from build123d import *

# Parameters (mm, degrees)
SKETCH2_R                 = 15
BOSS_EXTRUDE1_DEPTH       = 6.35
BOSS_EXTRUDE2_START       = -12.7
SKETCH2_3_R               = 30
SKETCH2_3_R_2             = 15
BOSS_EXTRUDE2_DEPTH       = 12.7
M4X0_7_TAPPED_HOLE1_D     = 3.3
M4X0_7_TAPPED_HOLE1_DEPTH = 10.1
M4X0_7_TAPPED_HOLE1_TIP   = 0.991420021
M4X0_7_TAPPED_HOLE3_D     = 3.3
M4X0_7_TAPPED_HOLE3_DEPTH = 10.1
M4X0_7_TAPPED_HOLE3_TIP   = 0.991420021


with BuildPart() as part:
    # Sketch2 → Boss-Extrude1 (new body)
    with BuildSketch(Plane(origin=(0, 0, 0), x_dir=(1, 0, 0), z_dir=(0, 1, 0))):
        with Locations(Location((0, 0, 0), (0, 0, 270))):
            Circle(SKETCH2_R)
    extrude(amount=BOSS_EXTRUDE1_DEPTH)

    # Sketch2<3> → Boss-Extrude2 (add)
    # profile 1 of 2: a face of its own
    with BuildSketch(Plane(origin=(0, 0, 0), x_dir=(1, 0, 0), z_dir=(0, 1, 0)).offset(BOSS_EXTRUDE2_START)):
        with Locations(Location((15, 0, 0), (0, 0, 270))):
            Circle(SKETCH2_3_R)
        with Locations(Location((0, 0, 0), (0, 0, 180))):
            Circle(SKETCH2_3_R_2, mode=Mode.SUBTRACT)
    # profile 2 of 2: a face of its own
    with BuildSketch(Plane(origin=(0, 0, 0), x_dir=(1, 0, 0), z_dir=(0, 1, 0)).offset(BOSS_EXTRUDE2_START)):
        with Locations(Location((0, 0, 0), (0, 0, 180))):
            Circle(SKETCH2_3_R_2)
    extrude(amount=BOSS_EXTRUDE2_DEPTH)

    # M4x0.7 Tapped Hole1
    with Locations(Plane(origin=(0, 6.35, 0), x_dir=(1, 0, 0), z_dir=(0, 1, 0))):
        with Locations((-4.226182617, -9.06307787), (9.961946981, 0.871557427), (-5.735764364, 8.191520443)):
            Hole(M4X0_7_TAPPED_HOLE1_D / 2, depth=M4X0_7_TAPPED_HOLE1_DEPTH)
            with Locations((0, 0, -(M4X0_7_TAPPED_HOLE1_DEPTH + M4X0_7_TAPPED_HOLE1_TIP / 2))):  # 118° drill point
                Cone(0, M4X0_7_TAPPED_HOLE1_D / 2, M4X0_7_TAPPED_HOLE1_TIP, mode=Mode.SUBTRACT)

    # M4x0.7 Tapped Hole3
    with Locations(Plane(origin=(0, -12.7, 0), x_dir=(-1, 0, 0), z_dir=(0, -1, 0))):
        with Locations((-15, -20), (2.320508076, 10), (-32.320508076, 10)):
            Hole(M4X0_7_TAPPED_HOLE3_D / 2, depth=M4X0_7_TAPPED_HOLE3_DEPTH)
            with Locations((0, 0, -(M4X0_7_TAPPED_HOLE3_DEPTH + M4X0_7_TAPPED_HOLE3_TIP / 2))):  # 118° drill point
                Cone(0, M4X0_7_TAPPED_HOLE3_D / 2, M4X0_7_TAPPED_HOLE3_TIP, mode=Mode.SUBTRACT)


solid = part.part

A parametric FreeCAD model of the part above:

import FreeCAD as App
import Part
import Sketcher
from FreeCAD import Vector

doc = App.newDocument("Part")
body = doc.addObject("PartDesign::Body", "Body")

# Sketch on XZ plane
sketch1 = body.newObject("Sketcher::SketchObject", "Sketch")
sketch1.AttachmentSupport = (doc.getObject("XZ_Plane"), [""])
sketch1.MapMode = "FlatFace"
sketch1.addGeometry(Part.Circle(Vector(0, 0, 0), Vector(0, 0, 1), 15), False)
sketch1.addConstraint([
    Sketcher.Constraint("Coincident", 0, 3, -1, 1),
    Sketcher.Constraint("Diameter", 0, 30.0),
])
pad1 = body.newObject("PartDesign::Pad", "Pad")
pad1.Profile = sketch1
pad1.Length = 6.35
pad1.Reversed = True

# Sketch on XZ plane
sketch2 = body.newObject("Sketcher::SketchObject", "Sketch001")
sketch2.AttachmentSupport = (doc.getObject("XZ_Plane"), [""])
sketch2.MapMode = "FlatFace"
sketch2.AttachmentOffset = App.Placement(Vector(0, 0, 12.7), App.Rotation())
sketch2.addGeometry(Part.Circle(Vector(15, 0, 0), Vector(0, 0, 1), 30), False)
sketch2.addConstraint([
    Sketcher.Constraint("PointOnObject", 0, 3, -1),
    Sketcher.Constraint("Diameter", 0, 60.0),
    Sketcher.Constraint("DistanceX", -1, 1, 0, 3, 15.0),
])
pad2 = body.newObject("PartDesign::Pad", "Pad001")
pad2.Profile = sketch2
pad2.Length = 12.7
pad2.Reversed = True

# Sketch on XZ plane
sketch3 = body.newObject("Sketcher::SketchObject", "Sketch002")
sketch3.AttachmentSupport = (doc.getObject("XZ_Plane"), [""])
sketch3.MapMode = "FlatFace"
sketch3.AttachmentOffset = App.Placement(Vector(0, 0, -6.35), App.Rotation())
sketch3.addGeometry([
    Part.Circle(Vector(-4.226183, 9.063078, 0), Vector(0, 0, 1), 1.65),
    Part.Circle(Vector(9.961947, -0.871557, 0), Vector(0, 0, 1), 1.65),
    Part.Circle(Vector(-5.735764, -8.19152, 0), Vector(0, 0, 1), 1.65),
], False)
sketch3.addConstraint([
    Sketcher.Constraint("Equal", 0, 1),
    Sketcher.Constraint("Equal", 1, 2),
    Sketcher.Constraint("Diameter", 0, 3.3),
    Sketcher.Constraint("DistanceY", 2, 3, 0, 3, 17.254598),
    Sketcher.Constraint("DistanceY", 2, 3, -1, 1, 8.19152),
    Sketcher.Constraint("DistanceX", 0, 3, 1, 3, 14.18813),
    Sketcher.Constraint("DistanceX", 2, 3, 0, 3, 1.509582),
    Sketcher.Constraint("DistanceX", 0, 3, -1, 1, 4.226183),
    Sketcher.Constraint("DistanceY", 1, 3, -1, 1, 0.871557),
])
doc.recompute()
hole = body.newObject("PartDesign::Hole", "Hole")
hole.Profile = sketch3
hole.ThreadType = "None"
hole.Diameter = 3.3
hole.DepthType = "Dimension"
hole.Depth = 10.1
hole.DrillPoint = "Angled"
hole.DrillPointAngle = 118
hole.Reversed = True

# Sketch on XZ plane
sketch4 = body.newObject("Sketcher::SketchObject", "Sketch003")
sketch4.AttachmentSupport = (doc.getObject("XZ_Plane"), [""])
sketch4.MapMode = "FlatFace"
sketch4.AttachmentOffset = App.Placement(Vector(0, 0, 12.7), App.Rotation())
sketch4.addGeometry([
    Part.Circle(Vector(15, 20, 0), Vector(0, 0, 1), 1.65),
    Part.Circle(Vector(-2.320508, -10, 0), Vector(0, 0, 1), 1.65),
    Part.Circle(Vector(32.320508, -10, 0), Vector(0, 0, 1), 1.65),
], False)
sketch4.addConstraint([
    Sketcher.Constraint("Equal", 0, 1),
    Sketcher.Constraint("Equal", 1, 2),
    Sketcher.Constraint("Horizontal", 1, 3, 2, 3),
    Sketcher.Constraint("Diameter", 0, 3.3),
    Sketcher.Constraint("DistanceX", -1, 1, 0, 3, 15.0),
    Sketcher.Constraint("DistanceY", -1, 1, 0, 3, 20.0),
    Sketcher.Constraint("DistanceY", 1, 3, -1, 1, 10.0),
    Sketcher.Constraint("DistanceX", 1, 3, -1, 1, 2.320508),
    Sketcher.Constraint("DistanceX", -1, 1, 2, 3, 32.320508),
])
doc.recompute()
hole2 = body.newObject("PartDesign::Hole", "Hole001")
hole2.Profile = sketch4
hole2.ThreadType = "None"
hole2.Diameter = 3.3
hole2.DepthType = "Dimension"
hole2.Depth = 10.1
hole2.DrillPoint = "Angled"
hole2.DrillPointAngle = 118

doc.recompute()
